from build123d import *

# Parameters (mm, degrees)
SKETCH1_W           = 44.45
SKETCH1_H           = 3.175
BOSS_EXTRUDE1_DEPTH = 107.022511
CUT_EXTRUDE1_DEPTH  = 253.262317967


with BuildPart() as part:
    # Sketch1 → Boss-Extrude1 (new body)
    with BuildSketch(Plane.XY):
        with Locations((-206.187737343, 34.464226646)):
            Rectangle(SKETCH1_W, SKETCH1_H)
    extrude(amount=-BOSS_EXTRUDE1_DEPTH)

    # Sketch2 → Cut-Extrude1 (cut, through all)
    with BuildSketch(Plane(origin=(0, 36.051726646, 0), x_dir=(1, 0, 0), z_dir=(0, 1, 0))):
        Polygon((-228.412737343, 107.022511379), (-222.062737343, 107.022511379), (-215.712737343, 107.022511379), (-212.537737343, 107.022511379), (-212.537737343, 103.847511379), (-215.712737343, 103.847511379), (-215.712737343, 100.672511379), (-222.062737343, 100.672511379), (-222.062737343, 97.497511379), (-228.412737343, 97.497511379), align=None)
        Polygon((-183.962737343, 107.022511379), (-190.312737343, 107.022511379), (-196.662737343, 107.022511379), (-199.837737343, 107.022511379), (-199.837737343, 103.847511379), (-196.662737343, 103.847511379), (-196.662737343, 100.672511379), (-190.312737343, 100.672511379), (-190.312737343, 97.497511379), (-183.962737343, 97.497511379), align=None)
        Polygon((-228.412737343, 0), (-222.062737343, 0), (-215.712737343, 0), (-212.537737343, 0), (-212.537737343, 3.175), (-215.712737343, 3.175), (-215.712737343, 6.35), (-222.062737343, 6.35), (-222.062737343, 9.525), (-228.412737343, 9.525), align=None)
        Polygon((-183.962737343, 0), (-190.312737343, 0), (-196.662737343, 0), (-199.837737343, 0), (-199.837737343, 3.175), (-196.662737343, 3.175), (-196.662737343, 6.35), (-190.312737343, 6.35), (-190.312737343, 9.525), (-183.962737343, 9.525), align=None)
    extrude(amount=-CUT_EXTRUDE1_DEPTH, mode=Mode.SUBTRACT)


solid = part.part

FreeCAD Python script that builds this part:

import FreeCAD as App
import Part
import Sketcher
from FreeCAD import Vector
Q = App.Units.Quantity


def add_polygon(sketch, points):
    """Adds a closed chain of lines whose ends are joined by coincident constraints."""
    first, n = sketch.GeometryCount, len(points)
    for a, b in zip(points, points[1:] + points[:1]):
        sketch.addGeometry(Part.LineSegment(App.Vector(*a, 0), App.Vector(*b, 0)), False)
    for i in range(n):
        sketch.addConstraint(Sketcher.Constraint("Coincident", first + i, 2, first + (i + 1) % n, 1))

doc = App.newDocument("Part")
params = doc.addObject("Spreadsheet::Sheet", "Params")
for row, (alias, value) in enumerate([
    ("sketch1_width", "1.75 in"),
    ("sketch1_height", "0.125 in"),
    ("pad1_length", "107.022511 mm"),
    ("sketch2_width", "0.25 in"),
], start=1):
    params.set(f"A{row}", alias)
    params.set(f"B{row}", "=" + value)
    params.setAlias(f"B{row}", alias)

body = doc.addObject("PartDesign::Body", "Body")

# Sketch on XY plane
sketch1 = doc.addObject("Sketcher::SketchObject", "Sketch")
body.addObject(sketch1)
sketch1.AttachmentSupport = (doc.XY_Plane, [""])
sketch1.MapMode = "FlatFace"
add_polygon(sketch1, [(-228.4, 36.1), (-228.4, 32.9), (-184, 32.9), (-184, 36.1)])  # lines 0-3
sketch1.addConstraint(Sketcher.Constraint("Vertical", 0))
sketch1.addConstraint(Sketcher.Constraint("Horizontal", 1))
sketch1.addConstraint(Sketcher.Constraint("Vertical", 2))
sketch1.addConstraint(Sketcher.Constraint("Horizontal", 3))
sketch1.addConstraint(Sketcher.Constraint("DistanceX", 1, 1, 1, 2, Q("1.75 in")))
sketch1.addConstraint(Sketcher.Constraint("DistanceY", 0, 2, 0, 1, Q("0.125 in")))
sketch1.addConstraint(Sketcher.Constraint("DistanceX", 0, 2, -1, 1, 228.412737))
sketch1.addConstraint(Sketcher.Constraint("DistanceY", -1, 1, 0, 2, 32.876727))
sketch1.setExpression("Constraints[8]", "Params.sketch1_width")
sketch1.setExpression("Constraints[9]", "Params.sketch1_height")
pad1 = doc.addObject("PartDesign::Pad", "Pad")
body.addObject(pad1)
pad1.Profile = sketch1
pad1.setExpression("Length", "Params.pad1_length")
pad1.Reversed = True

# Sketch on XZ plane
sketch2 = doc.addObject("Sketcher::SketchObject", "Sketch001")
body.addObject(sketch2)
sketch2.AttachmentSupport = (doc.XZ_Plane, [""])
sketch2.MapMode = "FlatFace"
sketch2.AttachmentOffset = App.Placement(Vector(0, 0, -36.051727), App.Rotation())
add_polygon(sketch2, [(-212.5, -107), (-228.4, -107), (-228.4, -97.5), (-222.1, -97.5), (-222.1, -100.7), (-215.7, -100.7), (-215.7, -103.8), (-212.5, -103.8)])  # lines 0-7
add_polygon(sketch2, [(-184, -107), (-199.8, -107), (-199.8, -103.8), (-196.7, -103.8), (-196.7, -100.7), (-190.3, -100.7), (-190.3, -97.5), (-184, -97.5)])  # lines 8-15
add_polygon(sketch2, [(-228.4, 0), (-212.5, 0), (-212.5, -3.2), (-215.7, -3.2), (-215.7, -6.3), (-222.1, -6.3), (-222.1, -9.5), (-228.4, -9.5)])  # lines 16-23
add_polygon(sketch2, [(-199.8, 0), (-184, 0), (-184, -9.5), (-190.3, -9.5), (-190.3, -6.3), (-196.7, -6.3), (-196.7, -3.2), (-199.8, -3.2)])  # lines 24-31
sketch2.addConstraint(Sketcher.Constraint("Horizontal", 0))
sketch2.addConstraint(Sketcher.Constraint("Vertical", 1))
sketch2.addConstraint(Sketcher.Constraint("Horizontal", 2))
sketch2.addConstraint(Sketcher.Constraint("Vertical", 3))
sketch2.addConstraint(Sketcher.Constraint("Horizontal", 4))
sketch2.addConstraint(Sketcher.Constraint("Vertical", 5))
sketch2.addConstraint(Sketcher.Constraint("Horizontal", 6))
sketch2.addConstraint(Sketcher.Constraint("Vertical", 7))
sketch2.addConstraint(Sketcher.Constraint("Horizontal", 8))
sketch2.addConstraint(Sketcher.Constraint("Vertical", 9))
sketch2.addConstraint(Sketcher.Constraint("Horizontal", 10))
sketch2.addConstraint(Sketcher.Constraint("Vertical", 11))
sketch2.addConstraint(Sketcher.Constraint("Horizontal", 12))
sketch2.addConstraint(Sketcher.Constraint("Vertical", 13))
sketch2.addConstraint(Sketcher.Constraint("Horizontal", 14))
sketch2.addConstraint(Sketcher.Constraint("Vertical", 15))
sketch2.addConstraint(Sketcher.Constraint("Horizontal", 16))
sketch2.addConstraint(Sketcher.Constraint("Vertical", 17))
sketch2.addConstraint(Sketcher.Constraint("Horizontal", 18))
sketch2.addConstraint(Sketcher.Constraint("Vertical", 19))
sketch2.addConstraint(Sketcher.Constraint("Horizontal", 20))
sketch2.addConstraint(Sketcher.Constraint("Vertical", 21))
sketch2.addConstraint(Sketcher.Constraint("Horizontal", 22))
sketch2.addConstraint(Sketcher.Constraint("Vertical", 23))
sketch2.addConstraint(Sketcher.Constraint("Horizontal", 24))
sketch2.addConstraint(Sketcher.Constraint("Vertical", 25))
sketch2.addConstraint(Sketcher.Constraint("Horizontal", 26))
sketch2.addConstraint(Sketcher.Constraint("Vertical", 27))
sketch2.addConstraint(Sketcher.Constraint("Horizontal", 28))
sketch2.addConstraint(Sketcher.Constraint("Vertical", 29))
sketch2.addConstraint(Sketcher.Constraint("Horizontal", 30))
sketch2.addConstraint(Sketcher.Constraint("Vertical", 31))
sketch2.addConstraint(Sketcher.Constraint("PointOnObject", 16, 2, -1))
sketch2.addConstraint(Sketcher.Constraint("PointOnObject", 24, 2, -1))
sketch2.addConstraint(Sketcher.Constraint("Horizontal", 7, 2, 8, 2))
sketch2.addConstraint(Sketcher.Constraint("Horizontal", 6, 2, 9, 2))
sketch2.addConstraint(Sketcher.Constraint("Horizontal", 4, 2, 11, 2))
sketch2.addConstraint(Sketcher.Constraint("Horizontal", 2, 2, 13, 2))
sketch2.addConstraint(Sketcher.Constraint("Horizontal", 22, 2, 25, 2))
sketch2.addConstraint(Sketcher.Constraint("Horizontal", 20, 2, 27, 2))
sketch2.addConstraint(Sketcher.Constraint("Horizontal", 18, 2, 29, 2))
sketch2.addConstraint(Sketcher.Constraint("Vertical", 7, 2, 16, 2))
sketch2.addConstraint(Sketcher.Constraint("Vertical", 5, 2, 18, 2))
sketch2.addConstraint(Sketcher.Constraint("Vertical", 3, 2, 20, 2))
sketch2.addConstraint(Sketcher.Constraint("Vertical", 1, 2, 22, 2))
sketch2.addConstraint(Sketcher.Constraint("Vertical", 15, 2, 24, 2))
sketch2.addConstraint(Sketcher.Constraint("Vertical", 13, 2, 26, 2))
sketch2.addConstraint(Sketcher.Constraint("Vertical", 11, 2, 28, 2))
sketch2.addConstraint(Sketcher.Constraint("Vertical", 9, 2, 30, 2))
sketch2.addConstraint(Sketcher.Constraint("Equal", 2, 4))
sketch2.addConstraint(Sketcher.Constraint("Equal", 0, 8))
sketch2.addConstraint(Sketcher.Constraint("Equal", 6, 10))
sketch2.addConstraint(Sketcher.Constraint("Equal", 4, 12))
sketch2.addConstraint(Sketcher.Constraint("Equal", 30, 3))
sketch2.addConstraint(Sketcher.Constraint("Equal", 3, 5))
sketch2.addConstraint(Sketcher.Constraint("Equal", 5, 7))
sketch2.addConstraint(Sketcher.Constraint("Equal", 13, 17))
sketch2.addConstraint(Sketcher.Constraint("Equal", 17, 19))
sketch2.addConstraint(Sketcher.Constraint("Equal", 19, 21))
sketch2.addConstraint(Sketcher.Constraint("DistanceX", 19, 2, 26, 2, Q("1 in")))
sketch2.addConstraint(Sketcher.Constraint("DistanceX", 2, 1, 2, 2, Q("0.25 in")))
sketch2.addConstraint(Sketcher.Constraint("DistanceX", 7, 2, 8, 2, Q("0.5 in")))
sketch2.addConstraint(Sketcher.Constraint("DistanceY", 0, 2, -1, 1, 107.022511))
sketch2.addConstraint(Sketcher.Constraint("DistanceX", 0, 2, -1, 1, 228.412737))
sketch2.setExpression("Constraints[92]", "Params.sketch2_width")
pocket1 = doc.addObject("PartDesign::Pocket", "Pocket")
body.addObject(pocket1)
pocket1.Profile = sketch2
pocket1.Type = "ThroughAll"
pocket1.Reversed = True

doc.recompute()
